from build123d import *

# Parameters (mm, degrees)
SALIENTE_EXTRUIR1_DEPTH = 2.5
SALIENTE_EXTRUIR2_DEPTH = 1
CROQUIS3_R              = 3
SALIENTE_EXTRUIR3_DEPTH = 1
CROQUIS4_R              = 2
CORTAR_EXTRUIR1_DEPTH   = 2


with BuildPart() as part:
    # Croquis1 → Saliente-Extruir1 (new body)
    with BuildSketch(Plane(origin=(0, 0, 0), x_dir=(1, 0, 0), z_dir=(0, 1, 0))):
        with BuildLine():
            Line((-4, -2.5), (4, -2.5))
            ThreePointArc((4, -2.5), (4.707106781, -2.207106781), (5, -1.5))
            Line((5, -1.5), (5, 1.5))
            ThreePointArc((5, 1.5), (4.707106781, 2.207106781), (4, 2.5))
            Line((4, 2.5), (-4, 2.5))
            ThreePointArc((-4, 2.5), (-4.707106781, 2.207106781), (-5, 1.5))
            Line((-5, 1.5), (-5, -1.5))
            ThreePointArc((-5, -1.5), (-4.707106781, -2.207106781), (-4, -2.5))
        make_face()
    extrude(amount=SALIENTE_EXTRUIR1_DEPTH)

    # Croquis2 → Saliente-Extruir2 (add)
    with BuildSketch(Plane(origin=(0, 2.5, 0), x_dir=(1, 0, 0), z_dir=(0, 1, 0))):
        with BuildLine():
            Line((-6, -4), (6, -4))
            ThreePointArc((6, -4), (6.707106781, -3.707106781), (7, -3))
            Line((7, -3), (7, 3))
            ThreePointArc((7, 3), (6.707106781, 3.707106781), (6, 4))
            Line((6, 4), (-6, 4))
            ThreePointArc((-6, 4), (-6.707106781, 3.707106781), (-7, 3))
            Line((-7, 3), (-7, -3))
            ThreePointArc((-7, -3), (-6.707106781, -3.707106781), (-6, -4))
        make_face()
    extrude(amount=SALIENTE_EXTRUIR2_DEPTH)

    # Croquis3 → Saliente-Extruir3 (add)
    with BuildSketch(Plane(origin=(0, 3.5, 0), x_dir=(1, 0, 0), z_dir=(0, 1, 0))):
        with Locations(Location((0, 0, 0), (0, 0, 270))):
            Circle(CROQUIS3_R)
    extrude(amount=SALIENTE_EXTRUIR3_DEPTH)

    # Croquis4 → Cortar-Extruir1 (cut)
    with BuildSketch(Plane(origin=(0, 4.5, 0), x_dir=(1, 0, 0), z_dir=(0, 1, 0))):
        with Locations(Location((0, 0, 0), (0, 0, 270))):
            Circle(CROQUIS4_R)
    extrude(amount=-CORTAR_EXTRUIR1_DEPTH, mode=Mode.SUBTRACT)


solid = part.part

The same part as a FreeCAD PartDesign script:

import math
import FreeCAD as App
import Part
import Sketcher

doc = App.newDocument("Part")
body = doc.addObject("PartDesign::Body", "Body")

# Sketch on XZ plane
sketch1 = body.newObject("Sketcher::SketchObject", "Sketch")
sketch1.AttachmentSupport = (doc.getObject("XZ_Plane"), [""])
sketch1.MapMode = "FlatFace"
sketch1.addGeometry(Part.LineSegment(App.Vector(-4, 2.5, 0), App.Vector(4, 2.5, 0)), False)
sketch1.addGeometry(Part.ArcOfCircle(Part.Circle(App.Vector(4, 1.5, 0), App.Vector(0, 0, 1), 1), math.radians(0), math.radians(90)), False)
sketch1.addGeometry(Part.LineSegment(App.Vector(5, 1.5, 0), App.Vector(5, -1.5, 0)), False)
sketch1.addGeometry(Part.ArcOfCircle(Part.Circle(App.Vector(4, -1.5, 0), App.Vector(0, 0, 1), 1), math.radians(-90), math.radians(0)), False)
sketch1.addGeometry(Part.LineSegment(App.Vector(4, -2.5, 0), App.Vector(-4, -2.5, 0)), False)
sketch1.addGeometry(Part.ArcOfCircle(Part.Circle(App.Vector(-4, -1.5, 0), App.Vector(0, 0, 1), 1), math.radians(-180), math.radians(-90)), False)
sketch1.addGeometry(Part.LineSegment(App.Vector(-5, -1.5, 0), App.Vector(-5, 1.5, 0)), False)
sketch1.addGeometry(Part.ArcOfCircle(Part.Circle(App.Vector(-4, 1.5, 0), App.Vector(0, 0, 1), 1), math.radians(90), math.radians(180)), False)
sketch1.addConstraint(Sketcher.Constraint("Tangent", 0, 2, 1, 2))
sketch1.addConstraint(Sketcher.Constraint("Tangent", 1, 1, 2, 1))
sketch1.addConstraint(Sketcher.Constraint("Tangent", 2, 2, 3, 2))
sketch1.addConstraint(Sketcher.Constraint("Tangent", 3, 1, 4, 1))
sketch1.addConstraint(Sketcher.Constraint("Tangent", 4, 2, 5, 2))
sketch1.addConstraint(Sketcher.Constraint("Tangent", 5, 1, 6, 1))
sketch1.addConstraint(Sketcher.Constraint("Tangent", 6, 2, 7, 2))
sketch1.addConstraint(Sketcher.Constraint("Tangent", 7, 1, 0, 1))
sketch1.addConstraint(Sketcher.Constraint("Horizontal", 0))
sketch1.addConstraint(Sketcher.Constraint("Vertical", 2))
sketch1.addConstraint(Sketcher.Constraint("Horizontal", 4))
sketch1.addConstraint(Sketcher.Constraint("Vertical", 6))
sketch1.addConstraint(Sketcher.Constraint("Equal", 1, 3))
sketch1.addConstraint(Sketcher.Constraint("Equal", 3, 5))
sketch1.addConstraint(Sketcher.Constraint("Equal", 5, 7))
sketch1.addConstraint(Sketcher.Constraint("Symmetric", 1, 3, 5, 3, -1, 1))
sketch1.addConstraint(Sketcher.Constraint("Radius", 1, 1.0))
sketch1.addConstraint(Sketcher.Constraint("DistanceX", 0, 1, 0, 2, 8.0))
sketch1.addConstraint(Sketcher.Constraint("DistanceY", 2, 2, 2, 1, 3.0))
pad1 = body.newObject("PartDesign::Pad", "Pad")
pad1.Profile = sketch1
pad1.Length = 2.5
pad1.Reversed = True

# Sketch on XZ plane
sketch2 = body.newObject("Sketcher::SketchObject", "Sketch001")
sketch2.AttachmentSupport = (doc.getObject("XZ_Plane"), [""])
sketch2.MapMode = "FlatFace"
sketch2.AttachmentOffset = App.Placement(App.Vector(0, 0, -2.5), App.Rotation())
sketch2.addGeometry(Part.LineSegment(App.Vector(-6, 4, 0), App.Vector(6, 4, 0)), False)
sketch2.addGeometry(Part.ArcOfCircle(Part.Circle(App.Vector(6, 3, 0), App.Vector(0, 0, 1), 1), math.radians(0), math.radians(90)), False)
sketch2.addGeometry(Part.LineSegment(App.Vector(7, 3, 0), App.Vector(7, -3, 0)), False)
sketch2.addGeometry(Part.ArcOfCircle(Part.Circle(App.Vector(6, -3, 0), App.Vector(0, 0, 1), 1), math.radians(-90), math.radians(0)), False)
sketch2.addGeometry(Part.LineSegment(App.Vector(6, -4, 0), App.Vector(-6, -4, 0)), False)
sketch2.addGeometry(Part.ArcOfCircle(Part.Circle(App.Vector(-6, -3, 0), App.Vector(0, 0, 1), 1), math.radians(-180), math.radians(-90)), False)
sketch2.addGeometry(Part.LineSegment(App.Vector(-7, -3, 0), App.Vector(-7, 3, 0)), False)
sketch2.addGeometry(Part.ArcOfCircle(Part.Circle(App.Vector(-6, 3, 0), App.Vector(0, 0, 1), 1), math.radians(90), math.radians(180)), False)
sketch2.addConstraint(Sketcher.Constraint("Tangent", 0, 2, 1, 2))
sketch2.addConstraint(Sketcher.Constraint("Tangent", 1, 1, 2, 1))
sketch2.addConstraint(Sketcher.Constraint("Tangent", 2, 2, 3, 2))
sketch2.addConstraint(Sketcher.Constraint("Tangent", 3, 1, 4, 1))
sketch2.addConstraint(Sketcher.Constraint("Tangent", 4, 2, 5, 2))
sketch2.addConstraint(Sketcher.Constraint("Tangent", 5, 1, 6, 1))
sketch2.addConstraint(Sketcher.Constraint("Tangent", 6, 2, 7, 2))
sketch2.addConstraint(Sketcher.Constraint("Tangent", 7, 1, 0, 1))
sketch2.addConstraint(Sketcher.Constraint("Horizontal", 0))
sketch2.addConstraint(Sketcher.Constraint("Vertical", 2))
sketch2.addConstraint(Sketcher.Constraint("Horizontal", 4))
sketch2.addConstraint(Sketcher.Constraint("Vertical", 6))
sketch2.addConstraint(Sketcher.Constraint("Equal", 1, 3))
sketch2.addConstraint(Sketcher.Constraint("Equal", 3, 5))
sketch2.addConstraint(Sketcher.Constraint("Equal", 5, 7))
sketch2.addConstraint(Sketcher.Constraint("Symmetric", 1, 3, 5, 3, -1, 1))
sketch2.addConstraint(Sketcher.Constraint("Radius", 1, 1.0))
sketch2.addConstraint(Sketcher.Constraint("DistanceX", 0, 1, 0, 2, 12.0))
sketch2.addConstraint(Sketcher.Constraint("DistanceY", 2, 2, 2, 1, 6.0))
pad2 = body.newObject("PartDesign::Pad", "Pad001")
pad2.Profile = sketch2
pad2.Length = 1
pad2.Reversed = True

# Sketch on XZ plane
sketch3 = body.newObject("Sketcher::SketchObject", "Sketch002")
sketch3.AttachmentSupport = (doc.getObject("XZ_Plane"), [""])
sketch3.MapMode = "FlatFace"
sketch3.AttachmentOffset = App.Placement(App.Vector(0, 0, -3.5), App.Rotation())
sketch3.addGeometry(Part.Circle(App.Vector(0, 0, 0), App.Vector(0, 0, 1), 3), False)
sketch3.addConstraint(Sketcher.Constraint("Coincident", 0, 3, -1, 1))
sketch3.addConstraint(Sketcher.Constraint("Diameter", 0, 6.0))
pad3 = body.newObject("PartDesign::Pad", "Pad002")
pad3.Profile = sketch3
pad3.Length = 1
pad3.Reversed = True

# Sketch on XZ plane
sketch4 = body.newObject("Sketcher::SketchObject", "Sketch003")
sketch4.AttachmentSupport = (doc.getObject("XZ_Plane"), [""])
sketch4.MapMode = "FlatFace"
sketch4.AttachmentOffset = App.Placement(App.Vector(0, 0, -4.5), App.Rotation())
sketch4.addGeometry(Part.Circle(App.Vector(0, 0, 0), App.Vector(0, 0, 1), 2), False)
sketch4.addConstraint(Sketcher.Constraint("Coincident", 0, 3, -1, 1))
sketch4.addConstraint(Sketcher.Constraint("Diameter", 0, 4.0))
pocket1 = body.newObject("PartDesign::Pocket", "Pocket")
pocket1.Profile = sketch4
pocket1.Length = 2
pocket1.Reversed = True

doc.recompute()
